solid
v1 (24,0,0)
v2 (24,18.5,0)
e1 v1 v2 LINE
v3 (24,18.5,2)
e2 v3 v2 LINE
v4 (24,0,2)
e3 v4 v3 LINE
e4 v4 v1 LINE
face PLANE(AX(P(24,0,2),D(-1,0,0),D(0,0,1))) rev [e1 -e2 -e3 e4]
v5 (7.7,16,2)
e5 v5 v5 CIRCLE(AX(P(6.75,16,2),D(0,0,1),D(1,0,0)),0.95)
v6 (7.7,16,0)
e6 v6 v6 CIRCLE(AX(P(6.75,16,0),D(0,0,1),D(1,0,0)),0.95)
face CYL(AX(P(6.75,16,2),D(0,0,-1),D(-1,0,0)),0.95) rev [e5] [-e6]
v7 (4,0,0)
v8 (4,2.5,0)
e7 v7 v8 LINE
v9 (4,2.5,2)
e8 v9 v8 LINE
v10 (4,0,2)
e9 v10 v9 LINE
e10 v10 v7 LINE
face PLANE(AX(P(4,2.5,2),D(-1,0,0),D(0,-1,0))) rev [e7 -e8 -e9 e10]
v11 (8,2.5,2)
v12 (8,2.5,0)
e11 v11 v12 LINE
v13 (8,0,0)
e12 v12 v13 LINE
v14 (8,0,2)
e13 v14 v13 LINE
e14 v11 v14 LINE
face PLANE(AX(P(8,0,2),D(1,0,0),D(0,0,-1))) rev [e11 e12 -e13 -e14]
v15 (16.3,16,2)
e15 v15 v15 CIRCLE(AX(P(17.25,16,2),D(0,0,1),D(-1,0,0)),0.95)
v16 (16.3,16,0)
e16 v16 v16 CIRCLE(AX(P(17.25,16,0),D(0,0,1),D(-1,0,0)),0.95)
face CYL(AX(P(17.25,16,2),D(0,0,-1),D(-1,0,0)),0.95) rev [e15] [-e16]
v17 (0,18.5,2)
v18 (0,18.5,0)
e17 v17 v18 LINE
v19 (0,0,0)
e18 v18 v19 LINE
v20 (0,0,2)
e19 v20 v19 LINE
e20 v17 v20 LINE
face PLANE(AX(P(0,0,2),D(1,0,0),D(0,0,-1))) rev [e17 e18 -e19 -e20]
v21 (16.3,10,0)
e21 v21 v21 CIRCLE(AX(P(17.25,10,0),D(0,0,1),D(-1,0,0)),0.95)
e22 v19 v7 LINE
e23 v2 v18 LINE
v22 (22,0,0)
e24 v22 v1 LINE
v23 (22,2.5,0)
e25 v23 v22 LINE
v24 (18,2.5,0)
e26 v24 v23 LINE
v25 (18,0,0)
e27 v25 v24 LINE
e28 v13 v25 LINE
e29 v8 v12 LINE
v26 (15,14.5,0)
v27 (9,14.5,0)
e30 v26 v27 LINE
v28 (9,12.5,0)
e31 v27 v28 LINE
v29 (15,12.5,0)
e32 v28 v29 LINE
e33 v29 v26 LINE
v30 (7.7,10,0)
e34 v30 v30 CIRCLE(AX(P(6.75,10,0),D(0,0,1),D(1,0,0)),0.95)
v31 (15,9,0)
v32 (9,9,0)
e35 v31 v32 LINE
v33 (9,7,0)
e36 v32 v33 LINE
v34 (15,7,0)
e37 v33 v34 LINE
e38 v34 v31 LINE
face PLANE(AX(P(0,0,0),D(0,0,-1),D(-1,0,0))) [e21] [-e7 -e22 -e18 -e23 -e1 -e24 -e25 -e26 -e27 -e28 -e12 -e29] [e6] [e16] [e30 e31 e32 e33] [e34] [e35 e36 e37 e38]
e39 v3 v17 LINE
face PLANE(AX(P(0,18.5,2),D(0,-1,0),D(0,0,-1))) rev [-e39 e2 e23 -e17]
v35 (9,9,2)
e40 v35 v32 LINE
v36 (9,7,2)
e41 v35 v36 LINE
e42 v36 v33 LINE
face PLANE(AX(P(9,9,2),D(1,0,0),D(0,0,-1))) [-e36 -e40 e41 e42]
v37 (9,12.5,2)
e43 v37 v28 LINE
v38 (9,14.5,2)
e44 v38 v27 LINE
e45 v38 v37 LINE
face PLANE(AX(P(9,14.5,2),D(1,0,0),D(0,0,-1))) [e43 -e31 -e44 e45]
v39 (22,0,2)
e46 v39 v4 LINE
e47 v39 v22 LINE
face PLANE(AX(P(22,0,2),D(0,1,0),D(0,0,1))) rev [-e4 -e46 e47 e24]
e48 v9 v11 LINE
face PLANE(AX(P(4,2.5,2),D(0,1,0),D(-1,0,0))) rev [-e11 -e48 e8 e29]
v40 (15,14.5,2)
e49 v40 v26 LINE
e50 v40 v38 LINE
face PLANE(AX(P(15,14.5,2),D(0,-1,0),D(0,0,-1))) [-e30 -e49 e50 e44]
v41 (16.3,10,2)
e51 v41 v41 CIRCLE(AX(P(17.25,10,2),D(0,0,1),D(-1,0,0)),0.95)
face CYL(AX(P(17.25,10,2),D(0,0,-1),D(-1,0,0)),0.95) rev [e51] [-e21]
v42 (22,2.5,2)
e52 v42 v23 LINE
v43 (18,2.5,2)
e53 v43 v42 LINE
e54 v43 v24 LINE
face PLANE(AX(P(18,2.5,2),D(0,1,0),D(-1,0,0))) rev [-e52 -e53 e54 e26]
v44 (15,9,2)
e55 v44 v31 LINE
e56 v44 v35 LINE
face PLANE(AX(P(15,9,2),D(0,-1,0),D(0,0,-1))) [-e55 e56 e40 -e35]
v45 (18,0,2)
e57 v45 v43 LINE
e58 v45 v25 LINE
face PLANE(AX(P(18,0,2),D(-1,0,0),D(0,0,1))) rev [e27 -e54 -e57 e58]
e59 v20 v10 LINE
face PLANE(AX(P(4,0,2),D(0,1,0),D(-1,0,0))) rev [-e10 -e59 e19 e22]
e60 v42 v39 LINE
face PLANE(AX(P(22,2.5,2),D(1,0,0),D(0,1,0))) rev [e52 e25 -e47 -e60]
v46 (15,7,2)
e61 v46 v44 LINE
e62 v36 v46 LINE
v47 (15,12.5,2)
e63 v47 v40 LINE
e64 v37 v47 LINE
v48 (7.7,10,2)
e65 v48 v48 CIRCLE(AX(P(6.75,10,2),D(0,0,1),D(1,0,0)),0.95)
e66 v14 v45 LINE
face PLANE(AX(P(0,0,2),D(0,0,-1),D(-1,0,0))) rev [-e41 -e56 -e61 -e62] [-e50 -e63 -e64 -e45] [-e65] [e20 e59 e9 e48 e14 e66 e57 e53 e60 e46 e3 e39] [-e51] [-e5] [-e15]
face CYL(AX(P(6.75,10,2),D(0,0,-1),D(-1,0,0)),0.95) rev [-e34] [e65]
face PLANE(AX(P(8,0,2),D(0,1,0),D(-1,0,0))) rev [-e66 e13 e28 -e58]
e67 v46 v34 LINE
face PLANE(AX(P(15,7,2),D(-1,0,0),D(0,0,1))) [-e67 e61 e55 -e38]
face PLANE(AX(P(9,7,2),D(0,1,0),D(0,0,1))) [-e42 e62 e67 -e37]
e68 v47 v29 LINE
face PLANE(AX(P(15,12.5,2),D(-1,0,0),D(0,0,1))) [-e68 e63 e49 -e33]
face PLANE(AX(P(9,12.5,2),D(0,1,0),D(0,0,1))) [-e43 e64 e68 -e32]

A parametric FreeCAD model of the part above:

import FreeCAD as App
import Part
import Sketcher

V = App.Vector
Q = App.Units.Quantity

doc = App.newDocument("Part")
body = doc.addObject("PartDesign::Body", "Body")

# Sketch on XY plane
sketch1 = body.newObject("Sketcher::SketchObject", "Sketch")
sketch1.AttachmentSupport = (doc.getObject("XY_Plane"), [""])
sketch1.MapMode = "FlatFace"
sketch1.addGeometry([
    Part.LineSegment(V(4, 2.5, 0), V(8, 2.5, 0)),  # 0
    Part.LineSegment(V(8, 2.5, 0), V(8, 0, 0)),  # 1
    Part.LineSegment(V(8, 0, 0), V(18, 0, 0)),  # 2
    Part.LineSegment(V(18, 0, 0), V(18, 2.5, 0)),  # 3
    Part.LineSegment(V(18, 2.5, 0), V(22, 2.5, 0)),  # 4
    Part.LineSegment(V(22, 2.5, 0), V(22, 0, 0)),  # 5
    Part.LineSegment(V(22, 0, 0), V(24, 0, 0)),  # 6
    Part.LineSegment(V(24, 0, 0), V(24, 18.5, 0)),  # 7
    Part.LineSegment(V(24, 18.5, 0), V(0, 18.5, 0)),  # 8
    Part.LineSegment(V(0, 18.5, 0), V(0, 0, 0)),  # 9
    Part.LineSegment(V(0, 0, 0), V(4, 0, 0)),  # 10
    Part.LineSegment(V(4, 0, 0), V(4, 2.5, 0)),  # 11
    Part.Circle(V(6.75, 10, 0), V(0, 0, 1), 0.95),  # 12
    Part.LineSegment(V(15, 7, 0), V(9, 7, 0)),  # 13
    Part.LineSegment(V(9, 7, 0), V(9, 9, 0)),  # 14
    Part.LineSegment(V(9, 9, 0), V(15, 9, 0)),  # 15
    Part.LineSegment(V(15, 9, 0), V(15, 7, 0)),  # 16
    Part.Circle(V(17.25, 10, 0), V(0, 0, 1), 0.95),  # 17
    Part.Circle(V(6.75, 16, 0), V(0, 0, 1), 0.95),  # 18
    Part.LineSegment(V(15, 12.5, 0), V(9, 12.5, 0)),  # 19
    Part.LineSegment(V(9, 12.5, 0), V(9, 14.5, 0)),  # 20
    Part.LineSegment(V(9, 14.5, 0), V(15, 14.5, 0)),  # 21
    Part.LineSegment(V(15, 14.5, 0), V(15, 12.5, 0)),  # 22
    Part.Circle(V(17.25, 16, 0), V(0, 0, 1), 0.95),  # 23
], False)
sketch1.addConstraint([
    Sketcher.Constraint("Coincident", 0, 2, 1, 1),
    Sketcher.Constraint("Coincident", 1, 2, 2, 1),
    Sketcher.Constraint("Coincident", 2, 2, 3, 1),
    Sketcher.Constraint("Coincident", 3, 2, 4, 1),
    Sketcher.Constraint("Coincident", 4, 2, 5, 1),
    Sketcher.Constraint("Coincident", 5, 2, 6, 1),
    Sketcher.Constraint("Coincident", 6, 2, 7, 1),
    Sketcher.Constraint("Coincident", 7, 2, 8, 1),
    Sketcher.Constraint("Coincident", 8, 2, 9, 1),
    Sketcher.Constraint("Coincident", 9, 2, 10, 1),
    Sketcher.Constraint("Coincident", 10, 2, 11, 1),
    Sketcher.Constraint("Coincident", 11, 2, 0, 1),
    Sketcher.Constraint("Coincident", 13, 2, 14, 1),
    Sketcher.Constraint("Coincident", 14, 2, 15, 1),
    Sketcher.Constraint("Coincident", 15, 2, 16, 1),
    Sketcher.Constraint("Coincident", 16, 2, 13, 1),
    Sketcher.Constraint("Coincident", 19, 2, 20, 1),
    Sketcher.Constraint("Coincident", 20, 2, 21, 1),
    Sketcher.Constraint("Coincident", 21, 2, 22, 1),
    Sketcher.Constraint("Coincident", 22, 2, 19, 1),
    Sketcher.Constraint("Horizontal", 0),
    Sketcher.Constraint("Vertical", 1),
    Sketcher.Constraint("Horizontal", 2),
    Sketcher.Constraint("Vertical", 3),
    Sketcher.Constraint("Horizontal", 4),
    Sketcher.Constraint("Vertical", 5),
    Sketcher.Constraint("Horizontal", 6),
    Sketcher.Constraint("Vertical", 7),
    Sketcher.Constraint("Horizontal", 8),
    Sketcher.Constraint("Vertical", 9),
    Sketcher.Constraint("Horizontal", 10),
    Sketcher.Constraint("Vertical", 11),
    Sketcher.Constraint("Horizontal", 13),
    Sketcher.Constraint("Vertical", 14),
    Sketcher.Constraint("Horizontal", 15),
    Sketcher.Constraint("Vertical", 16),
    Sketcher.Constraint("Horizontal", 19),
    Sketcher.Constraint("Vertical", 20),
    Sketcher.Constraint("Horizontal", 21),
    Sketcher.Constraint("Vertical", 22),
    Sketcher.Constraint("Coincident", 9, 2, -1, 1),
    Sketcher.Constraint("Equal", 12, 17),
    Sketcher.Constraint("Equal", 17, 18),
    Sketcher.Constraint("Equal", 18, 23),
    Sketcher.Constraint("PointOnObject", 1, 2, -1),
    Sketcher.Constraint("PointOnObject", 5, 2, -1),
    Sketcher.Constraint("Horizontal", 12, 3, 17, 3),
    Sketcher.Constraint("Horizontal", 18, 3, 23, 3),
    Sketcher.Constraint("Horizontal", 0, 2, 3, 2),
    Sketcher.Constraint("Vertical", 12, 3, 18, 3),
    Sketcher.Constraint("Vertical", 17, 3, 23, 3),
    Sketcher.Constraint("Vertical", 14, 2, 19, 2),
    Sketcher.Constraint("Vertical", 16, 2, 21, 2),
    Sketcher.Constraint("Equal", 0, 4),
    Sketcher.Constraint("Equal", 4, 10),
    Sketcher.Constraint("Equal", 6, 14),
    Sketcher.Constraint("Equal", 16, 20),
    Sketcher.Constraint("Diameter", 12, Q("1.9 mm")),
    Sketcher.Constraint("DistanceX", 0, 1, 0, 2, Q("4 mm")),
    Sketcher.Constraint("DistanceX", 2, 1, 2, 2, Q("10 mm")),
    Sketcher.Constraint("DistanceX", 6, 1, 6, 2, Q("2 mm")),
    Sketcher.Constraint("DistanceX", 13, 2, 13, 1, Q("6 mm")),
    Sketcher.Constraint("DistanceY", 1, 2, 1, 1, Q("2.5 mm")),
    Sketcher.Constraint("DistanceY", 7, 1, 7, 2, Q("18.5 mm")),
    Sketcher.Constraint("DistanceY", -1, 1, 12, 3, Q("10 mm")),
    Sketcher.Constraint("DistanceY", -1, 1, 18, 3, Q("16 mm")),
    Sketcher.Constraint("DistanceX", -1, 1, 13, 2, Q("9 mm")),
    Sketcher.Constraint("DistanceY", -1, 1, 13, 2, Q("7 mm")),
    Sketcher.Constraint("DistanceY", -1, 1, 19, 2, Q("12.5 mm")),
    Sketcher.Constraint("DistanceX", 12, 3, 17, 3, Q("10.5 mm")),
    Sketcher.Constraint("DistanceX", -1, 1, 12, 3, Q("6.75 mm")),
])
pad1 = body.newObject("PartDesign::Pad", "Pad")
pad1.Profile = sketch1
pad1.Length = 2

doc.recompute()
